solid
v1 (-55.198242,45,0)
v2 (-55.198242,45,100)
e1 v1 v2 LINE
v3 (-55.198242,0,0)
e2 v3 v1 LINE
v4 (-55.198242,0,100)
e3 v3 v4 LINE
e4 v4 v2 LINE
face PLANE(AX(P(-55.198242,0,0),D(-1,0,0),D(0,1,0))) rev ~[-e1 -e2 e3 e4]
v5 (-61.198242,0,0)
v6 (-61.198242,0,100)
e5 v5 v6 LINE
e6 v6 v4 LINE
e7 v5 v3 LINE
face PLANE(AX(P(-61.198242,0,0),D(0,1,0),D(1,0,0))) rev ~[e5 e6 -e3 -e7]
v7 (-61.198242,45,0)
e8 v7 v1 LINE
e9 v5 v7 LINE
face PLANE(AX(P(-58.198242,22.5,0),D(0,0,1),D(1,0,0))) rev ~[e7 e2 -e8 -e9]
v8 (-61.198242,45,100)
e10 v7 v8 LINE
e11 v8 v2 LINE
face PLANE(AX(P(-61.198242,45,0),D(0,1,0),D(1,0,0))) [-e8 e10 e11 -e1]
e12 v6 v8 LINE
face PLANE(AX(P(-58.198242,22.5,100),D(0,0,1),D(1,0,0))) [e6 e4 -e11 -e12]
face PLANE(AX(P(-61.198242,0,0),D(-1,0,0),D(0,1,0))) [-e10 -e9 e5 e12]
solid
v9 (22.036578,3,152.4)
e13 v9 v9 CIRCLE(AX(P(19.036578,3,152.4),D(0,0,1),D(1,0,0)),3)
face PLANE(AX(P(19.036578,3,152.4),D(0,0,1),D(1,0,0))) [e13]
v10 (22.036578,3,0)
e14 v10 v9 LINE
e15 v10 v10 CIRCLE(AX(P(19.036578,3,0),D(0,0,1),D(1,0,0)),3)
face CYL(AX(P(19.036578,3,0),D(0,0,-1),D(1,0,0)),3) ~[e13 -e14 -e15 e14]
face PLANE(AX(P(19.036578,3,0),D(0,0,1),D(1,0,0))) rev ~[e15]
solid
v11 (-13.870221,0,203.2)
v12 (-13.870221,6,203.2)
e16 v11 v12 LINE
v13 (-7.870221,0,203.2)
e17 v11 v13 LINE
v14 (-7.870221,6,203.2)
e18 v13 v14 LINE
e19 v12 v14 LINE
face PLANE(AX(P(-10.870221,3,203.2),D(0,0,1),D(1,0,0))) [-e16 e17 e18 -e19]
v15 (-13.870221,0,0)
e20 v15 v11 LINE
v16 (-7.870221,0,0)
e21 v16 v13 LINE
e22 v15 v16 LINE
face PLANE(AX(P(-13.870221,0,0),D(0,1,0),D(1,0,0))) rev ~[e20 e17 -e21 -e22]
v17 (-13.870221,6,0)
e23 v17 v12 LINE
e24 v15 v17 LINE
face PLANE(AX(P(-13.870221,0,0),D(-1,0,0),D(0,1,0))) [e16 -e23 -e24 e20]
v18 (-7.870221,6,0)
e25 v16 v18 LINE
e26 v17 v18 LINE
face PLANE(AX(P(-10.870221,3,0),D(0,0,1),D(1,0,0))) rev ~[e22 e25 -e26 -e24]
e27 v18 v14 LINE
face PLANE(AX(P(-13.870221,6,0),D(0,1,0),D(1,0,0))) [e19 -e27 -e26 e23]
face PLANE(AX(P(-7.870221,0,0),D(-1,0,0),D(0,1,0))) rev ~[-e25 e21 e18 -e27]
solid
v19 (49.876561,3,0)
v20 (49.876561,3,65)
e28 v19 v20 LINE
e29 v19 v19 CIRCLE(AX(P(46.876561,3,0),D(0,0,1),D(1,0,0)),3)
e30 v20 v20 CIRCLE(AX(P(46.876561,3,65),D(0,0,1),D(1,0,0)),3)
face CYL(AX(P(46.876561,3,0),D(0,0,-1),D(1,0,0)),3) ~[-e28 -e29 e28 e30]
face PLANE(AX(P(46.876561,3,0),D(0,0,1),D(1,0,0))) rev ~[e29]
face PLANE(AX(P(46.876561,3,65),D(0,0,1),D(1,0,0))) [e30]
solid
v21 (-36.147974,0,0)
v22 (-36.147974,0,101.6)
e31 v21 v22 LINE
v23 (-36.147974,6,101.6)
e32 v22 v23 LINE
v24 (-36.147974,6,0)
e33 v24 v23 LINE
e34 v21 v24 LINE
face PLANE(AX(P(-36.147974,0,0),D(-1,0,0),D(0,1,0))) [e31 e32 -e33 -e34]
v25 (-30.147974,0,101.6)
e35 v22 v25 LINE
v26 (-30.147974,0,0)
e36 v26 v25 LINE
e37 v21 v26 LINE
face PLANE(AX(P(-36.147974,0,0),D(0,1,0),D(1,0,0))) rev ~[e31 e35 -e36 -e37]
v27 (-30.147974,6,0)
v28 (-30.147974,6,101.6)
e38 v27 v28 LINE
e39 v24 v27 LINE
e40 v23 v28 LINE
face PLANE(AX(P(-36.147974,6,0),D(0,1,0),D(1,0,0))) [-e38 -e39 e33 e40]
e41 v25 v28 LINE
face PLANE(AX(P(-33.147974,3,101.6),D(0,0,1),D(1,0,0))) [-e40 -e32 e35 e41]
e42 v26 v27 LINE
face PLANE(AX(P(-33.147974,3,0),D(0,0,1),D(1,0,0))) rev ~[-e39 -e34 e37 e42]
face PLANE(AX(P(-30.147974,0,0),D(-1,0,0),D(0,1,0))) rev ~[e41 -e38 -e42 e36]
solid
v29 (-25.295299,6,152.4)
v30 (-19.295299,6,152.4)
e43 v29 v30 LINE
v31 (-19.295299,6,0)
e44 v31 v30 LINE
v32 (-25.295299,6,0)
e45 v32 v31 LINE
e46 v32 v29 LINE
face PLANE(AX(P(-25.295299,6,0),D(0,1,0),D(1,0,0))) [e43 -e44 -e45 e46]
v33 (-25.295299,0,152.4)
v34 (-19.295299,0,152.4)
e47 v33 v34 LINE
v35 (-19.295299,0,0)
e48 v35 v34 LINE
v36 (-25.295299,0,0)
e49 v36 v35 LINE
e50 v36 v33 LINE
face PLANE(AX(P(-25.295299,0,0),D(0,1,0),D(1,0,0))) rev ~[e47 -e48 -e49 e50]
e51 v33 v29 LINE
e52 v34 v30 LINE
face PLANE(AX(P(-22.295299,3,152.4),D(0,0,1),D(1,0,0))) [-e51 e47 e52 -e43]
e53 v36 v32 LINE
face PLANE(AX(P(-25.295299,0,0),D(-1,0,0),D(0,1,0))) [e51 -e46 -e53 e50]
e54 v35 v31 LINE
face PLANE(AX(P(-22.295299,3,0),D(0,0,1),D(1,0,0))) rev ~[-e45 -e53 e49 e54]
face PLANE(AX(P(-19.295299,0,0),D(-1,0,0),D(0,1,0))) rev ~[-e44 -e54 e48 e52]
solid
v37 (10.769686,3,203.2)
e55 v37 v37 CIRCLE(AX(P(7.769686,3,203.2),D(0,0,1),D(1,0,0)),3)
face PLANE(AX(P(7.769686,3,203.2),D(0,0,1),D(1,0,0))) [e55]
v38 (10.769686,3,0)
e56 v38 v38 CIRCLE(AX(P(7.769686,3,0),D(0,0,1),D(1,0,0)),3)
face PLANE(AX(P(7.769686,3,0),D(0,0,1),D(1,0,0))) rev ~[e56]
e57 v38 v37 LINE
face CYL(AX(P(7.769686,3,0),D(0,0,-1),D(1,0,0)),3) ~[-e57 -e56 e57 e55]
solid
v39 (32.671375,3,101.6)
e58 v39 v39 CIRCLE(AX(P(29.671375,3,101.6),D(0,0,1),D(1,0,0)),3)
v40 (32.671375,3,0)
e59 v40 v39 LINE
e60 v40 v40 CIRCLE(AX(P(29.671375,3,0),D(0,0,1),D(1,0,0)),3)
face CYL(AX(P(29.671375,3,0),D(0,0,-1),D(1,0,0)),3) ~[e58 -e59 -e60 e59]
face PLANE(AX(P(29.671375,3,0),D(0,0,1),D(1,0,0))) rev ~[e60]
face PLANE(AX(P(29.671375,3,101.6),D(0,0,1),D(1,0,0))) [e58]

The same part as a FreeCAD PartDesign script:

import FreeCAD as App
import Part
import Sketcher

V = App.Vector


def add_polygon(sketch, points):
    """Adds a closed chain of lines whose ends are joined by coincident constraints."""
    first, n = sketch.GeometryCount, len(points)
    for a, b in zip(points, points[1:] + points[:1]):
        sketch.addGeometry(Part.LineSegment(App.Vector(*a, 0), App.Vector(*b, 0)), False)
    for i in range(n):
        sketch.addConstraint(Sketcher.Constraint("Coincident", first + i, 2, first + (i + 1) % n, 1))

doc = App.newDocument("Part")
params = doc.addObject("Spreadsheet::Sheet", "Params")
for row, (alias, value) in enumerate([
    ("sketch1_width", "6 mm"),
    ("pad1_length", "101.6 mm"),
    ("sketch2_width", "6 mm"),
    ("pad2_length", "152.4 mm"),
    ("sketch3_width", "6 mm"),
    ("pad3_length", "203.2 mm"),
    ("sketch4_diameter", "6 mm"),
    ("pad4_length", "203.2 mm"),
    ("sketch5_diameter", "6 mm"),
    ("pad5_length", "152.4 mm"),
    ("sketch6_diameter", "6 mm"),
    ("pad6_length", "101.6 mm"),
    ("sketch7_diameter", "6 mm"),
    ("pad7_length", "65 mm"),
    ("sketch8_width", "6 mm"),
    ("sketch8_height", "45 mm"),
    ("pad8_length", "100 mm"),
], start=1):
    params.set(f"A{row}", alias)
    params.set(f"B{row}", "=" + value)
    params.setAlias(f"B{row}", alias)

body = doc.addObject("PartDesign::Body", "Body")

sketch1 = body.newObject("Sketcher::SketchObject", "Sketch")
sketch1.AttachmentSupport = (doc.getObject("XY_Plane"), [""])
sketch1.MapMode = "FlatFace"
add_polygon(sketch1, [(-36, 6), (-36, 0), (-30, 0), (-30, 6)])
sketch1.addConstraint(Sketcher.Constraint("Vertical", 0))
sketch1.addConstraint(Sketcher.Constraint("Horizontal", 1))
sketch1.addConstraint(Sketcher.Constraint("Vertical", 2))
sketch1.addConstraint(Sketcher.Constraint("Horizontal", 3))
sketch1.addConstraint(Sketcher.Constraint("PointOnObject", 0, 2, -1))
sketch1.addConstraint(Sketcher.Constraint("Equal", 3, 0))
sketch1.addConstraint(Sketcher.Constraint("DistanceX", 1, 1, 1, 2, 6.0))
sketch1.addConstraint(Sketcher.Constraint("DistanceX", 0, 2, -1, 1, 36.147974))
sketch1.setExpression("Constraints[10]", "Params.sketch1_width")
pad1 = body.newObject("PartDesign::Pad", "Pad")
pad1.Profile = sketch1
pad1.setExpression("Length", "Params.pad1_length")
body2 = doc.addObject("PartDesign::Body", "Body001")

sketch2 = body2.newObject("Sketcher::SketchObject", "Sketch001")
sketch2.AttachmentSupport = (doc.getObject("XY_Plane001"), [""])
sketch2.MapMode = "FlatFace"
add_polygon(sketch2, [(-25, 6), (-25, 0), (-19, 0), (-19, 6)])
sketch2.addConstraint(Sketcher.Constraint("Vertical", 0))
sketch2.addConstraint(Sketcher.Constraint("Horizontal", 1))
sketch2.addConstraint(Sketcher.Constraint("Vertical", 2))
sketch2.addConstraint(Sketcher.Constraint("Horizontal", 3))
sketch2.addConstraint(Sketcher.Constraint("PointOnObject", 0, 2, -1))
sketch2.addConstraint(Sketcher.Constraint("Equal", 3, 0))
sketch2.addConstraint(Sketcher.Constraint("DistanceX", 1, 1, 1, 2, 6.0))
sketch2.addConstraint(Sketcher.Constraint("DistanceX", 0, 2, -1, 1, 25.295299))
sketch2.setExpression("Constraints[10]", "Params.sketch2_width")
pad2 = body2.newObject("PartDesign::Pad", "Pad001")
pad2.Profile = sketch2
pad2.setExpression("Length", "Params.pad2_length")
body3 = doc.addObject("PartDesign::Body", "Body002")

sketch3 = body3.newObject("Sketcher::SketchObject", "Sketch002")
sketch3.AttachmentSupport = (doc.getObject("XY_Plane002"), [""])
sketch3.MapMode = "FlatFace"
add_polygon(sketch3, [(-14, 6), (-14, 0), (-8, 0), (-8, 6)])
sketch3.addConstraint(Sketcher.Constraint("Vertical", 0))
sketch3.addConstraint(Sketcher.Constraint("Horizontal", 1))
sketch3.addConstraint(Sketcher.Constraint("Vertical", 2))
sketch3.addConstraint(Sketcher.Constraint("Horizontal", 3))
sketch3.addConstraint(Sketcher.Constraint("PointOnObject", 0, 2, -1))
sketch3.addConstraint(Sketcher.Constraint("Equal", 3, 0))
sketch3.addConstraint(Sketcher.Constraint("DistanceX", 1, 1, 1, 2, 6.0))
sketch3.addConstraint(Sketcher.Constraint("DistanceX", 0, 2, -1, 1, 13.870221))
sketch3.setExpression("Constraints[10]", "Params.sketch3_width")
pad3 = body3.newObject("PartDesign::Pad", "Pad002")
pad3.Profile = sketch3
pad3.setExpression("Length", "Params.pad3_length")
body4 = doc.addObject("PartDesign::Body", "Body003")

sketch4 = body4.newObject("Sketcher::SketchObject", "Sketch003")
sketch4.AttachmentSupport = (doc.getObject("XY_Plane003"), [""])
sketch4.MapMode = "FlatFace"
sketch4.addGeometry(Part.Circle(V(7.8, 3, 0), V(0, 0, 1), 3), False)
sketch4.addConstraint(Sketcher.Constraint("Diameter", 0, 6.0))
sketch4.addConstraint(Sketcher.Constraint("DistanceY", -1, 1, 0, 3, 3.0))
sketch4.addConstraint(Sketcher.Constraint("DistanceX", -1, 1, 0, 3, 7.769686))
sketch4.setExpression("Constraints[0]", "Params.sketch4_diameter")
pad4 = body4.newObject("PartDesign::Pad", "Pad003")
pad4.Profile = sketch4
pad4.setExpression("Length", "Params.pad4_length")
body5 = doc.addObject("PartDesign::Body", "Body004")

sketch5 = body5.newObject("Sketcher::SketchObject", "Sketch004")
sketch5.AttachmentSupport = (doc.getObject("XY_Plane004"), [""])
sketch5.MapMode = "FlatFace"
sketch5.addGeometry(Part.Circle(V(19, 3, 0), V(0, 0, 1), 3), False)
sketch5.addConstraint(Sketcher.Constraint("Diameter", 0, 6.0))
sketch5.addConstraint(Sketcher.Constraint("DistanceY", -1, 1, 0, 3, 3.0))
sketch5.addConstraint(Sketcher.Constraint("DistanceX", -1, 1, 0, 3, 19.036578))
sketch5.setExpression("Constraints[0]", "Params.sketch5_diameter")
pad5 = body5.newObject("PartDesign::Pad", "Pad004")
pad5.Profile = sketch5
pad5.setExpression("Length", "Params.pad5_length")
body6 = doc.addObject("PartDesign::Body", "Body005")

sketch6 = body6.newObject("Sketcher::SketchObject", "Sketch005")
sketch6.AttachmentSupport = (doc.getObject("XY_Plane005"), [""])
sketch6.MapMode = "FlatFace"
sketch6.addGeometry(Part.Circle(V(29.7, 3, 0), V(0, 0, 1), 3), False)
sketch6.addConstraint(Sketcher.Constraint("Diameter", 0, 6.0))
sketch6.addConstraint(Sketcher.Constraint("DistanceY", -1, 1, 0, 3, 3.0))
sketch6.addConstraint(Sketcher.Constraint("DistanceX", -1, 1, 0, 3, 29.671375))
sketch6.setExpression("Constraints[0]", "Params.sketch6_diameter")
pad6 = body6.newObject("PartDesign::Pad", "Pad005")
pad6.Profile = sketch6
pad6.setExpression("Length", "Params.pad6_length")
body7 = doc.addObject("PartDesign::Body", "Body006")

sketch7 = body7.newObject("Sketcher::SketchObject", "Sketch006")
sketch7.AttachmentSupport = (doc.getObject("XY_Plane006"), [""])
sketch7.MapMode = "FlatFace"
sketch7.addGeometry(Part.Circle(V(46.9, 3, 0), V(0, 0, 1), 3), False)
sketch7.addConstraint(Sketcher.Constraint("Diameter", 0, 6.0))
sketch7.addConstraint(Sketcher.Constraint("DistanceY", -1, 1, 0, 3, 3.0))
sketch7.addConstraint(Sketcher.Constraint("DistanceX", -1, 1, 0, 3, 46.876561))
sketch7.setExpression("Constraints[0]", "Params.sketch7_diameter")
pad7 = body7.newObject("PartDesign::Pad", "Pad006")
pad7.Profile = sketch7
pad7.setExpression("Length", "Params.pad7_length")
body8 = doc.addObject("PartDesign::Body", "Body007")

sketch8 = body8.newObject("Sketcher::SketchObject", "Sketch007")
sketch8.AttachmentSupport = (doc.getObject("XY_Plane007"), [""])
sketch8.MapMode = "FlatFace"
add_polygon(sketch8, [(-61, 45), (-61, 0), (-55, 0), (-55, 45)])
sketch8.addConstraint(Sketcher.Constraint("Vertical", 0))
sketch8.addConstraint(Sketcher.Constraint("Horizontal", 1))
sketch8.addConstraint(Sketcher.Constraint("Vertical", 2))
sketch8.addConstraint(Sketcher.Constraint("Horizontal", 3))
sketch8.addConstraint(Sketcher.Constraint("PointOnObject", 0, 2, -1))
sketch8.addConstraint(Sketcher.Constraint("DistanceX", 1, 1, 1, 2, 6.0))
sketch8.addConstraint(Sketcher.Constraint("DistanceY", 0, 2, 0, 1, 45.0))
sketch8.addConstraint(Sketcher.Constraint("DistanceX", 0, 2, -1, 1, 61.198242))
sketch8.setExpression("Constraints[9]", "Params.sketch8_width")
sketch8.setExpression("Constraints[10]", "Params.sketch8_height")
pad8 = body8.newObject("PartDesign::Pad", "Pad007")
pad8.Profile = sketch8
pad8.setExpression("Length", "Params.pad8_length")

doc.recompute()
